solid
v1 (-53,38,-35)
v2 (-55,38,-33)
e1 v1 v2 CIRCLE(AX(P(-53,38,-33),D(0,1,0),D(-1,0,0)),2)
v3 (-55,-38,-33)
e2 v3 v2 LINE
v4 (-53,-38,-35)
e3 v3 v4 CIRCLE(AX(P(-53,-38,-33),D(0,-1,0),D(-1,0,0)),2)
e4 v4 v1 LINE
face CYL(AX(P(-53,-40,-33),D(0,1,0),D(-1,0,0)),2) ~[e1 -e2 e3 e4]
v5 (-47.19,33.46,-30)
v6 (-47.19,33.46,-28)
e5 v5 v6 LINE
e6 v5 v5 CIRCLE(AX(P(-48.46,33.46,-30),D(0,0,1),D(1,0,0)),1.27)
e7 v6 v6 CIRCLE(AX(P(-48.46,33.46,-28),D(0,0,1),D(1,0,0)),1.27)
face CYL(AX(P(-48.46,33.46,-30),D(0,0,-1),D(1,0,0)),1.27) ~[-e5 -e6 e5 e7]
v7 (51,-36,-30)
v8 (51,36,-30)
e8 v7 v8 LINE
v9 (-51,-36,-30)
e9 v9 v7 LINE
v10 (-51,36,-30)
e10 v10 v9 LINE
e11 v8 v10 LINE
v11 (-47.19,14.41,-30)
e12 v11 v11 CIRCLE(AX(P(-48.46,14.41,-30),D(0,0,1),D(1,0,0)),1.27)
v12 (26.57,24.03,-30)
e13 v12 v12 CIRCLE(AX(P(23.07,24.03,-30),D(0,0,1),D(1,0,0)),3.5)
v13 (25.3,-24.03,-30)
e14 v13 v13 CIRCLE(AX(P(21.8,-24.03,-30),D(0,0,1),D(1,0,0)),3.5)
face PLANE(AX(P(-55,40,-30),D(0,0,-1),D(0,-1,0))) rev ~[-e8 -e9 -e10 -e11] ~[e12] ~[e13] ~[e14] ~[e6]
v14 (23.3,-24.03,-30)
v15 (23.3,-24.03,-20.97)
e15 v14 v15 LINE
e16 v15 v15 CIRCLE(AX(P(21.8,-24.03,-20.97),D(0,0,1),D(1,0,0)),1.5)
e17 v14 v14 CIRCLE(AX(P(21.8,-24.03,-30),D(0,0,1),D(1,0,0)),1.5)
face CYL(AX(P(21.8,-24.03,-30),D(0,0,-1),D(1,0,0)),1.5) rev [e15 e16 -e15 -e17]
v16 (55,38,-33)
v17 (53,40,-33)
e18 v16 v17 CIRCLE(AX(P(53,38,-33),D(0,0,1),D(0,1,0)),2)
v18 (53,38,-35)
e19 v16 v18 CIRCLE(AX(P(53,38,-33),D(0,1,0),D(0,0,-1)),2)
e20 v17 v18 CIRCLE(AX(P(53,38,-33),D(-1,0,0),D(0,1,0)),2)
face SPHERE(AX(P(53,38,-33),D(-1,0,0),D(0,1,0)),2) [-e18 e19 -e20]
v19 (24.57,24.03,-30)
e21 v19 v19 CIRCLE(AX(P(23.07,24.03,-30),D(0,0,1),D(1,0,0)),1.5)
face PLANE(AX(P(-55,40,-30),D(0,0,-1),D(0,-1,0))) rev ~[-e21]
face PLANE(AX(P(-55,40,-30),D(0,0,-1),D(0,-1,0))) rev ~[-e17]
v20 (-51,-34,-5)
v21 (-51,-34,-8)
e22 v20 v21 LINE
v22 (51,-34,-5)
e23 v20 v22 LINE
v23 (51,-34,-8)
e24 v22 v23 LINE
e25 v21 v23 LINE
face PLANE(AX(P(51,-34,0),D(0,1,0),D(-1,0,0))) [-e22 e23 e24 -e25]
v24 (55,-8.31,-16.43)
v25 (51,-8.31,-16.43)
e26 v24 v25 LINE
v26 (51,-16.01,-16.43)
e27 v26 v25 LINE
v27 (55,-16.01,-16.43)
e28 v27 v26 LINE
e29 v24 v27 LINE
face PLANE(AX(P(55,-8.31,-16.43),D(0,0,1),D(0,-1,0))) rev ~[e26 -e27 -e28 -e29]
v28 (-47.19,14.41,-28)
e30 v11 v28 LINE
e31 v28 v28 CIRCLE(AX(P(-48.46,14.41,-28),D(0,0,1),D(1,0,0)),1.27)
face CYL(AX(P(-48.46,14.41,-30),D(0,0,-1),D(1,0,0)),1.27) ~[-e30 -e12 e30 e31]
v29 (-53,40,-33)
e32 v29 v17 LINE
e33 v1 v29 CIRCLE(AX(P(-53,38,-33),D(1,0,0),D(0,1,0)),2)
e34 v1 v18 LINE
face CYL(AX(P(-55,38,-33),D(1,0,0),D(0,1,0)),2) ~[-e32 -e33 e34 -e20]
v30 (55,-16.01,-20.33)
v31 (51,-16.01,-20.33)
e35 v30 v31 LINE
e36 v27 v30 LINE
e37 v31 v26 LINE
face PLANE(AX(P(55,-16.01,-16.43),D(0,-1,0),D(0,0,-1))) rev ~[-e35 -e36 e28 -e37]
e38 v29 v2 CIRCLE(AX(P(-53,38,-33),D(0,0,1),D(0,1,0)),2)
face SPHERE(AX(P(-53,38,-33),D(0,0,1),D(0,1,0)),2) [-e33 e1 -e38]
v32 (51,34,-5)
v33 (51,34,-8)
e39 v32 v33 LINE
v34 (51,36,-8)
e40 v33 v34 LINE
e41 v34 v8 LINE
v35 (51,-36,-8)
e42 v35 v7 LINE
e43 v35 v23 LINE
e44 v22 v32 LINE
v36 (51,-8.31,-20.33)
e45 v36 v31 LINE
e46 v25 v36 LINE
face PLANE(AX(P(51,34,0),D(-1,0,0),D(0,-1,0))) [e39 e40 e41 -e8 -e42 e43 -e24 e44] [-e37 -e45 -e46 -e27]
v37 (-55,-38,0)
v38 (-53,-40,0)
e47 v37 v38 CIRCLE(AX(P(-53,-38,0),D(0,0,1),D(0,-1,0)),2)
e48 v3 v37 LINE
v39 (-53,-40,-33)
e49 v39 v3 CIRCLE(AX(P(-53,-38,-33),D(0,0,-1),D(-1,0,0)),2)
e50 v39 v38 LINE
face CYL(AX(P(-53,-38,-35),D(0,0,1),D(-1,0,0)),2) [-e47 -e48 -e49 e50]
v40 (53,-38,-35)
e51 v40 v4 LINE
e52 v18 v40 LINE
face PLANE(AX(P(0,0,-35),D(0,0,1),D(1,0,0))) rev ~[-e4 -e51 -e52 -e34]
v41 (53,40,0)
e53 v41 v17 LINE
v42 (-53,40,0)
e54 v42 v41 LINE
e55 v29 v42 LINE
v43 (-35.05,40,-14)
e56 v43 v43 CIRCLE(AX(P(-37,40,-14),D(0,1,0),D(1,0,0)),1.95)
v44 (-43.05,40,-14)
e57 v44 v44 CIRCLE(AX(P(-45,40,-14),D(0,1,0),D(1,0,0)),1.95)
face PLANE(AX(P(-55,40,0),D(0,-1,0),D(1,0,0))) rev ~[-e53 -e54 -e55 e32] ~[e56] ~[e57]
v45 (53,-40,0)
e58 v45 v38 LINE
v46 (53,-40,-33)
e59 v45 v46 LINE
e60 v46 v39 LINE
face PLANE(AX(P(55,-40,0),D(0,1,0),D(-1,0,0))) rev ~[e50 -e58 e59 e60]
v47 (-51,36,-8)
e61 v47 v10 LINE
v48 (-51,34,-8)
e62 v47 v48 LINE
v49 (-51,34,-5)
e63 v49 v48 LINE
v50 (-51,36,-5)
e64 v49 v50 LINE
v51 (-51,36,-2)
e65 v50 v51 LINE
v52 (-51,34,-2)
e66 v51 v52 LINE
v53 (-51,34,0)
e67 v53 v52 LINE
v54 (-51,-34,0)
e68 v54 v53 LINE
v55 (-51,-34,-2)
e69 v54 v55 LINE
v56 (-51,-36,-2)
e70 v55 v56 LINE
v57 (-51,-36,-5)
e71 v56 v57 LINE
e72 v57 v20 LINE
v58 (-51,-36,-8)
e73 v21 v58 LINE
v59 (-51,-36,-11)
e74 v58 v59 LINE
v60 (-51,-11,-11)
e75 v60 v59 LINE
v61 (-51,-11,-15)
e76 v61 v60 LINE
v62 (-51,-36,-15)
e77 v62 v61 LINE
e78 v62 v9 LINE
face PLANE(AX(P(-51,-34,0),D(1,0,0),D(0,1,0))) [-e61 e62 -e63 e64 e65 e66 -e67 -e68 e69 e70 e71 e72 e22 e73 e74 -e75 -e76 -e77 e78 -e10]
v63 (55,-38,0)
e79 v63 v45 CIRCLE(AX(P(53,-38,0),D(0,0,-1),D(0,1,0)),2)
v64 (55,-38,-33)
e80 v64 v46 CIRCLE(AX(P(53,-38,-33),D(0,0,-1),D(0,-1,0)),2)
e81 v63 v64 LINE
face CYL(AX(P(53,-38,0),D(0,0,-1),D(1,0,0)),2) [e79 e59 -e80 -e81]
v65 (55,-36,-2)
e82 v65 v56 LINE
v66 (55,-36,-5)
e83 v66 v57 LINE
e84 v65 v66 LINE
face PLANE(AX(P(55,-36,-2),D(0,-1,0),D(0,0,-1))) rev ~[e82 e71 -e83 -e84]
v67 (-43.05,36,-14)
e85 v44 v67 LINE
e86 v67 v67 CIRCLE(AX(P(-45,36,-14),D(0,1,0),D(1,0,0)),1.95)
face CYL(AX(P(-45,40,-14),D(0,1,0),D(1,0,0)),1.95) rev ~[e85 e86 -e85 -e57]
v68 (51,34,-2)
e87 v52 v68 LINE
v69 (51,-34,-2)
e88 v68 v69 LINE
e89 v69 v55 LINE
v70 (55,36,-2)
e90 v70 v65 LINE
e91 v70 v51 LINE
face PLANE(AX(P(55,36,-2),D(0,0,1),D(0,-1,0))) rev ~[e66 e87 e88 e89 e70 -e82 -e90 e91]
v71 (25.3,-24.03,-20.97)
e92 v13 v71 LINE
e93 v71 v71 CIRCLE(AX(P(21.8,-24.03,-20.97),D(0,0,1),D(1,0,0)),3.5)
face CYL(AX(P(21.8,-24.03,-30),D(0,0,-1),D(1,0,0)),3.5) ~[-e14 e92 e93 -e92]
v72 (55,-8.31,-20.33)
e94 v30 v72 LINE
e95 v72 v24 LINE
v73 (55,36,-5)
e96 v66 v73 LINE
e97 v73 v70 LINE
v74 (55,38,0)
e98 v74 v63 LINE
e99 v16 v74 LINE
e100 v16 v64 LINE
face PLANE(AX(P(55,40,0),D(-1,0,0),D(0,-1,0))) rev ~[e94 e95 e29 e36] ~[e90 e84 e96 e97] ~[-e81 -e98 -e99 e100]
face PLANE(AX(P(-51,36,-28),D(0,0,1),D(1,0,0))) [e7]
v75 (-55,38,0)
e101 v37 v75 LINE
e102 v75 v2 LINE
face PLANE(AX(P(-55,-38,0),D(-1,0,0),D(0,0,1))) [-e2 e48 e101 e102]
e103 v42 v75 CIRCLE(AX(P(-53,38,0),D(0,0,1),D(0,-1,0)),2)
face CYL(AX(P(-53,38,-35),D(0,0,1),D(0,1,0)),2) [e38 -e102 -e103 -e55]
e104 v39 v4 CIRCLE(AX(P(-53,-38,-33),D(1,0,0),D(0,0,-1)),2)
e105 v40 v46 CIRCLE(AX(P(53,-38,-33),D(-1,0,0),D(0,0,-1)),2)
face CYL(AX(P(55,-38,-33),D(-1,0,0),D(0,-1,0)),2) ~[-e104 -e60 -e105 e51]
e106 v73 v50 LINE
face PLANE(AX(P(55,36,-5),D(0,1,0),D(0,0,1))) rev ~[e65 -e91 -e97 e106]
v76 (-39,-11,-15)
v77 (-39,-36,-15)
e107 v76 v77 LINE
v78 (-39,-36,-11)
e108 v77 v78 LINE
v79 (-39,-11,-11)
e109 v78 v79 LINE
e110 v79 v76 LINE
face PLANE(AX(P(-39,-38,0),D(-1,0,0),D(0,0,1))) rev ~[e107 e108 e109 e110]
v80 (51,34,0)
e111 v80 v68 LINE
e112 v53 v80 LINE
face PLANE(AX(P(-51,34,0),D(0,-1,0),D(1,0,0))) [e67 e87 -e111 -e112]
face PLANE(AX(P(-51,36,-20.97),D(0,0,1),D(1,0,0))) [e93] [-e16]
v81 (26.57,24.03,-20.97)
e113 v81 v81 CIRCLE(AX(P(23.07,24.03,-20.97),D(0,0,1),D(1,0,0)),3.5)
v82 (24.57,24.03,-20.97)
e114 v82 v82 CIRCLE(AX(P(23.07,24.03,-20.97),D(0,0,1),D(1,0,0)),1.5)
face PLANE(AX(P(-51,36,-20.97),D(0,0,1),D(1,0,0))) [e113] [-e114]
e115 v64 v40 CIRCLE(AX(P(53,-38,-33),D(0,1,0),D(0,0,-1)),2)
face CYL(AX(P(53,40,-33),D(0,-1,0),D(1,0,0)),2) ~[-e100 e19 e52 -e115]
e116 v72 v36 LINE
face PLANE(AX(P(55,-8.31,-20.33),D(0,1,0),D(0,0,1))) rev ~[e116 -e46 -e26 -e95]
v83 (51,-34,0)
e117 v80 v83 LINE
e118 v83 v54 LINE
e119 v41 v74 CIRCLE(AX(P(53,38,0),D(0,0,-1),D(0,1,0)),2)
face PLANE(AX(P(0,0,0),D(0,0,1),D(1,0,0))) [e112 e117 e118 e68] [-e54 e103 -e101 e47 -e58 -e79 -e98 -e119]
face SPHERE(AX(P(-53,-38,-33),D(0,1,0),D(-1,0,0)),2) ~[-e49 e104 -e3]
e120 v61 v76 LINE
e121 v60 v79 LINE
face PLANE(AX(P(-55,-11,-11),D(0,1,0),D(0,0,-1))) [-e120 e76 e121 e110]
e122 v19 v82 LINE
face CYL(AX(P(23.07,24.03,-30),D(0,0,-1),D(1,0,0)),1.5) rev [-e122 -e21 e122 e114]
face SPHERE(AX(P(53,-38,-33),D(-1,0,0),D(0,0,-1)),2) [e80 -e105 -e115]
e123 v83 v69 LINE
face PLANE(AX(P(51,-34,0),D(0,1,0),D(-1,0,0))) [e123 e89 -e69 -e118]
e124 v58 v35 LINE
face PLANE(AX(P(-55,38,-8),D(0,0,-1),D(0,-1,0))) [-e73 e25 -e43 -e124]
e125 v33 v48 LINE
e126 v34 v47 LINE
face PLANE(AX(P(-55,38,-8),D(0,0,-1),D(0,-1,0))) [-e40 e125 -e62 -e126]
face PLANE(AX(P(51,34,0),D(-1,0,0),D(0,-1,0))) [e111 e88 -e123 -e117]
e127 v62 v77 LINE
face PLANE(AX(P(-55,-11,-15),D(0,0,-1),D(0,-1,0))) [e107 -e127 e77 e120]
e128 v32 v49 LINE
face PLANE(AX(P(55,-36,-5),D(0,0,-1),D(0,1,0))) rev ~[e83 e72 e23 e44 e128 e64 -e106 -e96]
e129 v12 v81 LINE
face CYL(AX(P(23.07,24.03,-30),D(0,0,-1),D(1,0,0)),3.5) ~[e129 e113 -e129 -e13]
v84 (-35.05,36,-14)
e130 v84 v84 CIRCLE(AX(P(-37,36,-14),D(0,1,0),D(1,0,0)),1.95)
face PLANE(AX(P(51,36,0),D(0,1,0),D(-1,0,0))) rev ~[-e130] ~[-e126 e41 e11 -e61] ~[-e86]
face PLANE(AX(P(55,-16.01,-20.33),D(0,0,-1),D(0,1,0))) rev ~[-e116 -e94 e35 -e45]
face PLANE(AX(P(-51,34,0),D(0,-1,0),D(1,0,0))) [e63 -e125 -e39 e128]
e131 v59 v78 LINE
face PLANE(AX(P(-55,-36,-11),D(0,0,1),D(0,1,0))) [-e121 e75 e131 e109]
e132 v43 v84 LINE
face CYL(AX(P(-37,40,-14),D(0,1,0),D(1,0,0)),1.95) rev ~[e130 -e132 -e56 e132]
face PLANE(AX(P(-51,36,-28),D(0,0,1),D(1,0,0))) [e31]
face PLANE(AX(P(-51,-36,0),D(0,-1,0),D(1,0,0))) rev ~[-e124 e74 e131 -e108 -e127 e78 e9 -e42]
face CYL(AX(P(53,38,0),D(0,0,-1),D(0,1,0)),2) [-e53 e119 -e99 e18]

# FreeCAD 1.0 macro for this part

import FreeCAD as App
import Part
import Sketcher

V = App.Vector
Q = App.Units.Quantity


def edges_at(feature, points):
    """Names of the edges that pass closest to the given points."""
    edges = feature.Shape.Edges
    near = lambda p: min(range(len(edges)), key=lambda i: edges[i].distToShape(Part.Vertex(*p))[0])
    return sorted({f"Edge{near(p) + 1}" for p in points})


def add_polygon(sketch, points):
    """Adds a closed chain of lines whose ends are joined by coincident constraints."""
    first, n = sketch.GeometryCount, len(points)
    for a, b in zip(points, points[1:] + points[:1]):
        sketch.addGeometry(Part.LineSegment(App.Vector(*a, 0), App.Vector(*b, 0)), False)
    for i in range(n):
        sketch.addConstraint(Sketcher.Constraint("Coincident", first + i, 2, first + (i + 1) % n, 1))

doc = App.newDocument("Part")
body = doc.addObject("PartDesign::Body", "Body")

sketch1 = doc.addObject("Sketcher::SketchObject", "Sketch")
body.addObject(sketch1)
sketch1.AttachmentSupport = (doc.XY_Plane, [""])
sketch1.MapMode = "FlatFace"
add_polygon(sketch1, [(55, 40), (-55, 40), (-55, -40), (55, -40)])
add_polygon(sketch1, [(51, -36), (-51, -36), (-51, 36), (51, 36)])
sketch1.addConstraint([
    Sketcher.Constraint("Horizontal", 0),
    Sketcher.Constraint("Vertical", 1),
    Sketcher.Constraint("Horizontal", 2),
    Sketcher.Constraint("Vertical", 3),
    Sketcher.Constraint("Horizontal", 4),
    Sketcher.Constraint("Vertical", 5),
    Sketcher.Constraint("Horizontal", 6),
    Sketcher.Constraint("Vertical", 7),
    Sketcher.Constraint("Symmetric", 0, 2, 2, 2, -1, 1),
    Sketcher.Constraint("Symmetric", 4, 2, 6, 2, -1, 1),
    Sketcher.Constraint("DistanceX", 0, 2, 0, 1, Q("110 mm")),
    Sketcher.Constraint("DistanceX", 4, 2, 4, 1, Q("102 mm")),
    Sketcher.Constraint("DistanceY", 1, 2, 1, 1, Q("80 mm")),
    Sketcher.Constraint("DistanceY", 5, 1, 5, 2, Q("72 mm")),
])
pad1 = doc.addObject("PartDesign::Pad", "Pad")
body.addObject(pad1)
pad1.Profile = sketch1
pad1.Length = 35
pad1.Reversed = True

sketch2 = doc.addObject("Sketcher::SketchObject", "Sketch001")
body.addObject(sketch2)
sketch2.AttachmentSupport = (doc.YZ_Plane, [""])
sketch2.MapMode = "FlatFace"
sketch2.AttachmentOffset = App.Placement(V(0, 0, -55), App.Rotation())
add_polygon(sketch2, [(-40, -30), (40, -30), (40, -35), (-40, -35)])
sketch2.addConstraint([
    Sketcher.Constraint("Horizontal", 0),
    Sketcher.Constraint("Vertical", 1),
    Sketcher.Constraint("Horizontal", 2),
    Sketcher.Constraint("Vertical", 3),
    Sketcher.Constraint("DistanceY", 1, 2, 1, 1, Q("5 mm")),
    Sketcher.Constraint("DistanceX", 0, 1, 0, 2, Q("80 mm")),
    Sketcher.Constraint("DistanceX", -1, 1, 0, 2, Q("40 mm")),
    Sketcher.Constraint("DistanceY", 0, 2, -1, 1, Q("30 mm")),
])
pad2 = doc.addObject("PartDesign::Pad", "Pad001")
body.addObject(pad2)
pad2.Profile = sketch2
pad2.Length = 110
doc.recompute()

fillet = doc.addObject("PartDesign::Fillet", "Fillet")
body.addObject(fillet)
fillet.Base = (pad2, edges_at(pad2, [
    (-55, 40, -17.5),
    (0, 40, -35),
    (55, 40, -17.5),
    (-55, 0, -35),
    (-55, -40, -17.5),
    (0, -40, -35),
    (55, 0, -35),
    (55, -40, -17.5),
]))
fillet.Radius = 2

sketch3 = doc.addObject("Sketcher::SketchObject", "Sketch002")
body.addObject(sketch3)
sketch3.AttachmentSupport = (doc.YZ_Plane, [""])
sketch3.MapMode = "FlatFace"
sketch3.AttachmentOffset = App.Placement(V(0, 0, 55), App.Rotation())
add_polygon(sketch3, [(36, -3), (-36, -3), (-36, -7), (36, -7)])
sketch3.addConstraint([
    Sketcher.Constraint("Horizontal", 0),
    Sketcher.Constraint("Vertical", 1),
    Sketcher.Constraint("Horizontal", 2),
    Sketcher.Constraint("Vertical", 3),
    Sketcher.Constraint("DistanceX", 0, 2, 0, 1, Q("72 mm")),
    Sketcher.Constraint("DistanceY", 1, 2, 1, 1, Q("4 mm")),
    Sketcher.Constraint("DistanceY", 0, 2, -1, 1, Q("3 mm")),
    Sketcher.Constraint("DistanceX", 0, 2, -1, 1, Q("36 mm")),
])
pocket1 = doc.addObject("PartDesign::Pocket", "Pocket")
body.addObject(pocket1)
pocket1.Profile = sketch3
pocket1.Length = 10

sketch4 = doc.addObject("Sketcher::SketchObject", "Sketch003")
body.addObject(sketch4)
sketch4.AttachmentSupport = (doc.XY_Plane, [""])
sketch4.MapMode = "FlatFace"
sketch4.AttachmentOffset = App.Placement(V(0, 0, -30), App.Rotation())
sketch4.addGeometry([
    Part.Circle(V(-48.46, 33.46, 0), V(0, 0, 1), 1.27),
    Part.Circle(V(-48.46, 14.41, 0), V(0, 0, 1), 1.27),
], False)
sketch4.addConstraint([
    Sketcher.Constraint("Equal", 0, 1),
    Sketcher.Constraint("Vertical", 0, 3, 1, 3),
    Sketcher.Constraint("Diameter", 0, Q("2.54 mm")),
    Sketcher.Constraint("DistanceY", 1, 3, 0, 3, Q("19.05 mm")),
    Sketcher.Constraint("DistanceX", 0, 3, -1, 1, Q("48.46 mm")),
    Sketcher.Constraint("DistanceY", -1, 1, 0, 3, Q("33.46 mm")),
])
pad3 = doc.addObject("PartDesign::Pad", "Pad002")
body.addObject(pad3)
pad3.Profile = sketch4
pad3.Length = 2

sketch5 = doc.addObject("Sketcher::SketchObject", "Sketch004")
body.addObject(sketch5)
sketch5.AttachmentSupport = (doc.YZ_Plane, [""])
sketch5.MapMode = "FlatFace"
sketch5.AttachmentOffset = App.Placement(V(0, 0, -55), App.Rotation())
add_polygon(sketch5, [(-38, 0), (38, 0), (38, -8), (-38, -8)])
sketch5.addConstraint([
    Sketcher.Constraint("Horizontal", 0),
    Sketcher.Constraint("Vertical", 1),
    Sketcher.Constraint("Horizontal", 2),
    Sketcher.Constraint("Vertical", 3),
    Sketcher.Constraint("Symmetric", 0, 2, 3, 2, -1, 1),
    Sketcher.Constraint("DistanceX", 0, 1, 0, 2, Q("76 mm")),
    Sketcher.Constraint("DistanceY", 1, 2, 1, 1, Q("8 mm")),
])
pad4 = doc.addObject("PartDesign::Pad", "Pad003")
body.addObject(pad4)
pad4.Profile = sketch5
pad4.Length = 110

sketch6 = doc.addObject("Sketcher::SketchObject", "Sketch005")
body.addObject(sketch6)
sketch6.AttachmentSupport = (doc.YZ_Plane, [""])
sketch6.MapMode = "FlatFace"
sketch6.AttachmentOffset = App.Placement(V(0, 0, 55), App.Rotation())
add_polygon(sketch6, [(36, -2), (-36, -2), (-36, -5), (36, -5)])
sketch6.addConstraint([
    Sketcher.Constraint("Horizontal", 0),
    Sketcher.Constraint("Vertical", 1),
    Sketcher.Constraint("Horizontal", 2),
    Sketcher.Constraint("Vertical", 3),
    Sketcher.Constraint("DistanceX", 0, 2, 0, 1, Q("72 mm")),
    Sketcher.Constraint("DistanceY", 1, 2, 1, 1, Q("3 mm")),
    Sketcher.Constraint("DistanceY", 0, 2, -1, 1, Q("2 mm")),
    Sketcher.Constraint("DistanceX", 0, 2, -1, 1, Q("36 mm")),
])
pocket2 = doc.addObject("PartDesign::Pocket", "Pocket001")
body.addObject(pocket2)
pocket2.Profile = sketch6
pocket2.Length = 106

sketch7 = doc.addObject("Sketcher::SketchObject", "Sketch006")
body.addObject(sketch7)
sketch7.AttachmentSupport = (doc.XY_Plane, [""])
sketch7.MapMode = "FlatFace"
add_polygon(sketch7, [(51, 34), (-51, 34), (-51, -34), (51, -34)])
sketch7.addConstraint([
    Sketcher.Constraint("Horizontal", 0),
    Sketcher.Constraint("Vertical", 1),
    Sketcher.Constraint("Horizontal", 2),
    Sketcher.Constraint("Vertical", 3),
    Sketcher.Constraint("Symmetric", 0, 2, 2, 2, -1, 1),
    Sketcher.Constraint("DistanceX", 0, 2, 0, 1, Q("102 mm")),
    Sketcher.Constraint("DistanceY", 1, 2, 1, 1, Q("68 mm")),
])
pocket3 = doc.addObject("PartDesign::Pocket", "Pocket002")
body.addObject(pocket3)
pocket3.Profile = sketch7
pocket3.Length = 10

sketch8 = doc.addObject("Sketcher::SketchObject", "Sketch007")
body.addObject(sketch8)
sketch8.AttachmentSupport = (doc.YZ_Plane, [""])
sketch8.MapMode = "FlatFace"
sketch8.AttachmentOffset = App.Placement(V(0, 0, -55), App.Rotation())
add_polygon(sketch8, [(-36, -11), (-11, -11), (-11, -15), (-36, -15)])
sketch8.addConstraint([
    Sketcher.Constraint("Horizontal", 0),
    Sketcher.Constraint("Vertical", 1),
    Sketcher.Constraint("Horizontal", 2),
    Sketcher.Constraint("Vertical", 3),
    Sketcher.Constraint("DistanceX", 0, 1, 0, 2, Q("25 mm")),
    Sketcher.Constraint("DistanceY", 1, 2, 1, 1, Q("4 mm")),
    Sketcher.Constraint("DistanceX", 0, 2, -1, 1, Q("11 mm")),
    Sketcher.Constraint("DistanceY", 0, 2, -1, 1, Q("11 mm")),
])
pad5 = doc.addObject("PartDesign::Pad", "Pad004")
body.addObject(pad5)
pad5.Profile = sketch8
pad5.Length = 16

sketch9 = doc.addObject("Sketcher::SketchObject", "Sketch008")
body.addObject(sketch9)
sketch9.AttachmentSupport = (doc.XY_Plane, [""])
sketch9.MapMode = "FlatFace"
sketch9.AttachmentOffset = App.Placement(V(0, 0, -30), App.Rotation())
sketch9.addGeometry([
    Part.Circle(V(23.07, 24.03, 0), V(0, 0, 1), 3.5),
    Part.Circle(V(23.07, 24.03, 0), V(0, 0, 1), 1.5),
    Part.Circle(V(21.8, -24.03, 0), V(0, 0, 1), 3.5),
    Part.Circle(V(21.8, -24.03, 0), V(0, 0, 1), 1.5),
], False)
sketch9.addConstraint([
    Sketcher.Constraint("Coincident", 1, 3, 0, 3),
    Sketcher.Constraint("Coincident", 3, 3, 2, 3),
    Sketcher.Constraint("Equal", 0, 2),
    Sketcher.Constraint("Equal", 1, 3),
    Sketcher.Constraint("Diameter", 0, Q("7 mm")),
    Sketcher.Constraint("Diameter", 1, Q("3 mm")),
    Sketcher.Constraint("DistanceX", -1, 1, 2, 3, Q("21.8 mm")),
    Sketcher.Constraint("DistanceX", -1, 1, 0, 3, Q("23.07 mm")),
    Sketcher.Constraint("DistanceY", -1, 1, 0, 3, Q("24.03 mm")),
    Sketcher.Constraint("DistanceY", 2, 3, -1, 1, Q("24.03 mm")),
])
pad6 = doc.addObject("PartDesign::Pad", "Pad005")
body.addObject(pad6)
pad6.Profile = sketch9
pad6.Length = 9.03

sketch10 = doc.addObject("Sketcher::SketchObject", "Sketch009")
body.addObject(sketch10)
sketch10.AttachmentSupport = (doc.XZ_Plane, [""])
sketch10.MapMode = "FlatFace"
sketch10.AttachmentOffset = App.Placement(V(0, 0, -40), App.Rotation())
sketch10.addGeometry([
    Part.Circle(V(-37, -14, 0), V(0, 0, 1), 1.95),
    Part.Circle(V(-45, -14, 0), V(0, 0, 1), 1.95),
], False)
sketch10.addConstraint([
    Sketcher.Constraint("Equal", 0, 1),
    Sketcher.Constraint("Horizontal", 0, 3, 1, 3),
    Sketcher.Constraint("Diameter", 0, Q("3.9 mm")),
    Sketcher.Constraint("DistanceY", 0, 3, -1, 1, Q("14 mm")),
    Sketcher.Constraint("DistanceX", 1, 3, 0, 3, Q("8 mm")),
    Sketcher.Constraint("DistanceX", 0, 3, -1, 1, Q("37 mm")),
])
pocket4 = doc.addObject("PartDesign::Pocket", "Pocket003")
body.addObject(pocket4)
pocket4.Profile = sketch10
pocket4.Length = 10
pocket4.Reversed = True

sketch11 = doc.addObject("Sketcher::SketchObject", "Sketch010")
body.addObject(sketch11)
sketch11.AttachmentSupport = (doc.YZ_Plane, [""])
sketch11.MapMode = "FlatFace"
sketch11.AttachmentOffset = App.Placement(V(0, 0, 55), App.Rotation())
add_polygon(sketch11, [(-8.31, -16.43), (-16.01, -16.43), (-16.01, -20.33), (-8.31, -20.33)])
sketch11.addConstraint([
    Sketcher.Constraint("Horizontal", 0),
    Sketcher.Constraint("Vertical", 1),
    Sketcher.Constraint("Horizontal", 2),
    Sketcher.Constraint("Vertical", 3),
    Sketcher.Constraint("DistanceX", 0, 2, 0, 1, Q("7.7 mm")),
    Sketcher.Constraint("DistanceY", 1, 2, 1, 1, Q("3.9 mm")),
    Sketcher.Constraint("DistanceX", 0, 2, -1, 1, Q("16.01 mm")),
    Sketcher.Constraint("DistanceY", 0, 2, -1, 1, Q("16.43 mm")),
])
pocket5 = doc.addObject("PartDesign::Pocket", "Pocket004")
body.addObject(pocket5)
pocket5.Profile = sketch11
pocket5.Length = 10

doc.recompute()
